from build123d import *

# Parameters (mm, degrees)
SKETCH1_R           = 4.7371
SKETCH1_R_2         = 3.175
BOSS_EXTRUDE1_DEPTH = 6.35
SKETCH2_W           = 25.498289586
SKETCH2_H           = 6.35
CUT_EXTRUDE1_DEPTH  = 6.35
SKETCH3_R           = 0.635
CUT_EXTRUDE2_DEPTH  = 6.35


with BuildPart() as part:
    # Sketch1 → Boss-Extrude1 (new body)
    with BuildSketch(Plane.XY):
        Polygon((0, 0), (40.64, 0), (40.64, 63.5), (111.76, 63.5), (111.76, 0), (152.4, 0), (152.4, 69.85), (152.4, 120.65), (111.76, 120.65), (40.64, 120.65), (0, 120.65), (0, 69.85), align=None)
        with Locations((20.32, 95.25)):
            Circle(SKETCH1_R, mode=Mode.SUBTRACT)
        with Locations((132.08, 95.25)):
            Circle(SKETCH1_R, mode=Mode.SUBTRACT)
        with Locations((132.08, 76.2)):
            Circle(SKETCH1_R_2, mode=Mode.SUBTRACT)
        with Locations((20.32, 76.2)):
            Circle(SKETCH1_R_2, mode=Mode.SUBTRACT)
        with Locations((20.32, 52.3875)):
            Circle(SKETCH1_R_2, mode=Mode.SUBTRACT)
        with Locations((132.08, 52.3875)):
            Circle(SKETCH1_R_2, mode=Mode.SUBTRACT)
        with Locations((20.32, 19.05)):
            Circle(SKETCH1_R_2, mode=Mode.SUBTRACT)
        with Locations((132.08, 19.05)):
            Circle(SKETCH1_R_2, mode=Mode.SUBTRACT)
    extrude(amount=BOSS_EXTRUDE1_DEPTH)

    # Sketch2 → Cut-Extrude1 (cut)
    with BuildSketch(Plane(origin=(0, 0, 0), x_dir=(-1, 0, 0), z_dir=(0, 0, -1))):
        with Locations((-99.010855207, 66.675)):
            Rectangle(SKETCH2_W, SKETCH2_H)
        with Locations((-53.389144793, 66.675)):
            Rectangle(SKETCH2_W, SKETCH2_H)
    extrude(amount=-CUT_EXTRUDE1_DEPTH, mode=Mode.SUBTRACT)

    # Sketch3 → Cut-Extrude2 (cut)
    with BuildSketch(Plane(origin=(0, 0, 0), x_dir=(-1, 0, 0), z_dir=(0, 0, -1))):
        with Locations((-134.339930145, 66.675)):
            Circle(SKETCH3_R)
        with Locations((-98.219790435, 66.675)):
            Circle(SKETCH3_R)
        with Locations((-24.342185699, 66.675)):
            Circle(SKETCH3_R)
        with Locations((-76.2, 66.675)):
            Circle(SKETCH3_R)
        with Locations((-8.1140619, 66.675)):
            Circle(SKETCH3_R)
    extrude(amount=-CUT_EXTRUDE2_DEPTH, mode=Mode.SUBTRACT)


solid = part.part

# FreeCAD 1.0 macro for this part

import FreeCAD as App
import Part
import Sketcher
Q = App.Units.Quantity


def add_polygon(sketch, points):
    """Adds a closed chain of lines whose ends are joined by coincident constraints."""
    first, n = sketch.GeometryCount, len(points)
    for a, b in zip(points, points[1:] + points[:1]):
        sketch.addGeometry(Part.LineSegment(App.Vector(*a, 0), App.Vector(*b, 0)), False)
    for i in range(n):
        sketch.addConstraint(Sketcher.Constraint("Coincident", first + i, 2, first + (i + 1) % n, 1))

doc = App.newDocument("Part")
body = doc.addObject("PartDesign::Body", "Body")

# Sketch on XY plane
sketch1 = body.newObject("Sketcher::SketchObject", "Sketch")
sketch1.AttachmentSupport = (doc.getObject("XY_Plane"), [""])
sketch1.MapMode = "FlatFace"
add_polygon(sketch1, [(0, 0), (40.6, 0), (40.6, 63.5), (111.8, 63.5), (111.8, 0), (152.4, 0), (152.4, 120.7), (0, 120.7)])  # lines 0-7
sketch1.addGeometry(Part.Circle(App.Vector(20.3, 19.1, 0), App.Vector(0, 0, 1), 3.2), False)  # 8
sketch1.addGeometry(Part.Circle(App.Vector(20.3, 52.4, 0), App.Vector(0, 0, 1), 3.2), False)  # 9
sketch1.addGeometry(Part.Circle(App.Vector(132.1, 19.1, 0), App.Vector(0, 0, 1), 3.2), False)  # 10
sketch1.addGeometry(Part.Circle(App.Vector(132.1, 52.4, 0), App.Vector(0, 0, 1), 3.2), False)  # 11
sketch1.addGeometry(Part.Circle(App.Vector(20.3, 76.2, 0), App.Vector(0, 0, 1), 3.2), False)  # 12
sketch1.addGeometry(Part.Circle(App.Vector(20.3, 95.2, 0), App.Vector(0, 0, 1), 4.7), False)  # 13
sketch1.addGeometry(Part.Circle(App.Vector(132.1, 76.2, 0), App.Vector(0, 0, 1), 3.2), False)  # 14
sketch1.addGeometry(Part.Circle(App.Vector(132.1, 95.2, 0), App.Vector(0, 0, 1), 4.7), False)  # 15
sketch1.addConstraint(Sketcher.Constraint("Horizontal", 0))
sketch1.addConstraint(Sketcher.Constraint("Vertical", 1))
sketch1.addConstraint(Sketcher.Constraint("Horizontal", 2))
sketch1.addConstraint(Sketcher.Constraint("Vertical", 3))
sketch1.addConstraint(Sketcher.Constraint("Horizontal", 4))
sketch1.addConstraint(Sketcher.Constraint("Vertical", 5))
sketch1.addConstraint(Sketcher.Constraint("Horizontal", 6))
sketch1.addConstraint(Sketcher.Constraint("Vertical", 7))
sketch1.addConstraint(Sketcher.Constraint("Coincident", 7, 2, -1, 1))
sketch1.addConstraint(Sketcher.Constraint("Equal", 8, 9))
sketch1.addConstraint(Sketcher.Constraint("Equal", 9, 10))
sketch1.addConstraint(Sketcher.Constraint("Equal", 10, 11))
sketch1.addConstraint(Sketcher.Constraint("Equal", 11, 12))
sketch1.addConstraint(Sketcher.Constraint("Equal", 12, 14))
sketch1.addConstraint(Sketcher.Constraint("Equal", 13, 15))
sketch1.addConstraint(Sketcher.Constraint("PointOnObject", 3, 2, -1))
sketch1.addConstraint(Sketcher.Constraint("Horizontal", 8, 3, 10, 3))
sketch1.addConstraint(Sketcher.Constraint("Horizontal", 9, 3, 11, 3))
sketch1.addConstraint(Sketcher.Constraint("Horizontal", 12, 3, 14, 3))
sketch1.addConstraint(Sketcher.Constraint("Horizontal", 13, 3, 15, 3))
sketch1.addConstraint(Sketcher.Constraint("Vertical", 8, 3, 9, 3))
sketch1.addConstraint(Sketcher.Constraint("Vertical", 10, 3, 11, 3))
sketch1.addConstraint(Sketcher.Constraint("Vertical", 9, 3, 12, 3))
sketch1.addConstraint(Sketcher.Constraint("Vertical", 12, 3, 13, 3))
sketch1.addConstraint(Sketcher.Constraint("Vertical", 11, 3, 14, 3))
sketch1.addConstraint(Sketcher.Constraint("Vertical", 14, 3, 15, 3))
sketch1.addConstraint(Sketcher.Constraint("Equal", 0, 4))
sketch1.addConstraint(Sketcher.Constraint("Diameter", 8, Q("0.25 in")))
sketch1.addConstraint(Sketcher.Constraint("DistanceX", 6, 2, 6, 1, Q("6 in")))
sketch1.addConstraint(Sketcher.Constraint("Diameter", 13, Q("0.373 in")))
sketch1.addConstraint(Sketcher.Constraint("DistanceX", 0, 1, 0, 2, Q("1.6 in")))
sketch1.addConstraint(Sketcher.Constraint("DistanceY", 1, 1, 1, 2, Q("2.5 in")))
sketch1.addConstraint(Sketcher.Constraint("DistanceY", -1, 1, 12, 3, Q("3 in")))
sketch1.addConstraint(Sketcher.Constraint("DistanceY", 8, 3, 13, 3, Q("3 in")))
sketch1.addConstraint(Sketcher.Constraint("DistanceY", 15, 3, 5, 2, Q("1 in")))
sketch1.addConstraint(Sketcher.Constraint("DistanceY", 5, 1, 5, 2, Q("4.75 in")))
sketch1.addConstraint(Sketcher.Constraint("DistanceX", -1, 1, 8, 3, Q("0.8 in")))
sketch1.addConstraint(Sketcher.Constraint("DistanceX", -1, 1, 10, 3, Q("5.2 in")))
sketch1.addConstraint(Sketcher.Constraint("DistanceY", -1, 1, 9, 3, Q("2.0625 in")))
pad1 = body.newObject("PartDesign::Pad", "Pad")
pad1.Profile = sketch1
pad1.Length = Q("0.25 in")

# Sketch on XY plane
sketch2 = body.newObject("Sketcher::SketchObject", "Sketch001")
sketch2.AttachmentSupport = (doc.getObject("XY_Plane"), [""])
sketch2.MapMode = "FlatFace"
add_polygon(sketch2, [(112, 70), (112, 64), (86, 64), (86, 70)])  # lines 0-3
add_polygon(sketch2, [(66, 70), (66, 64), (41, 64), (41, 70)])  # lines 4-7
sketch2.addConstraint(Sketcher.Constraint("Vertical", 0))
sketch2.addConstraint(Sketcher.Constraint("Horizontal", 1))
sketch2.addConstraint(Sketcher.Constraint("Vertical", 2))
sketch2.addConstraint(Sketcher.Constraint("Horizontal", 3))
sketch2.addConstraint(Sketcher.Constraint("Vertical", 4))
sketch2.addConstraint(Sketcher.Constraint("Horizontal", 5))
sketch2.addConstraint(Sketcher.Constraint("Vertical", 6))
sketch2.addConstraint(Sketcher.Constraint("Horizontal", 7))
sketch2.addConstraint(Sketcher.Constraint("Horizontal", 1, 2, 4, 2))
sketch2.addConstraint(Sketcher.Constraint("Horizontal", 3, 2, 6, 2))
sketch2.addConstraint(Sketcher.Constraint("Equal", 3, 5))
sketch2.addConstraint(Sketcher.Constraint("DistanceY", 0, 2, 0, 1, Q("0.25 in")))
sketch2.addConstraint(Sketcher.Constraint("DistanceX", -1, 1, 0, 2, Q("4.4 in")))
sketch2.addConstraint(Sketcher.Constraint("DistanceY", -1, 1, 0, 2, Q("2.5 in")))
sketch2.addConstraint(Sketcher.Constraint("DistanceX", -1, 1, 5, 2, Q("1.6 in")))
sketch2.addConstraint(Sketcher.Constraint("DistanceX", 1, 2, 1, 1, 25.49829))
pocket1 = body.newObject("PartDesign::Pocket", "Pocket")
pocket1.Profile = sketch2
pocket1.Length = Q("0.25 in")
pocket1.Reversed = True

# Sketch on XY plane
sketch3 = body.newObject("Sketcher::SketchObject", "Sketch002")
sketch3.AttachmentSupport = (doc.getObject("XY_Plane"), [""])
sketch3.MapMode = "FlatFace"
sketch3.addGeometry(Part.Circle(App.Vector(134.3, 66.7, 0), App.Vector(0, 0, 1), 0.6), False)
sketch3.addGeometry(Part.Circle(App.Vector(98.2, 66.7, 0), App.Vector(0, 0, 1), 0.6), False)
sketch3.addGeometry(Part.Circle(App.Vector(24.3, 66.7, 0), App.Vector(0, 0, 1), 0.6), False)
sketch3.addGeometry(Part.Circle(App.Vector(76.2, 66.7, 0), App.Vector(0, 0, 1), 0.6), False)
sketch3.addGeometry(Part.Circle(App.Vector(8.1, 66.7, 0), App.Vector(0, 0, 1), 0.6), False)
sketch3.addConstraint(Sketcher.Constraint("Equal", 0, 1))
sketch3.addConstraint(Sketcher.Constraint("Equal", 1, 2))
sketch3.addConstraint(Sketcher.Constraint("Equal", 2, 3))
sketch3.addConstraint(Sketcher.Constraint("Equal", 3, 4))
sketch3.addConstraint(Sketcher.Constraint("Horizontal", 0, 3, 1, 3))
sketch3.addConstraint(Sketcher.Constraint("Horizontal", 1, 3, 2, 3))
sketch3.addConstraint(Sketcher.Constraint("Horizontal", 2, 3, 3, 3))
sketch3.addConstraint(Sketcher.Constraint("Horizontal", 3, 3, 4, 3))
sketch3.addConstraint(Sketcher.Constraint("Diameter", 0, Q("0.05 in")))
sketch3.addConstraint(Sketcher.Constraint("DistanceX", -1, 1, 3, 3, Q("3 in")))
sketch3.addConstraint(Sketcher.Constraint("DistanceY", -1, 1, 0, 3, Q("2.625 in")))
sketch3.addConstraint(Sketcher.Constraint("DistanceX", -1, 1, 0, 3, 134.33993))
sketch3.addConstraint(Sketcher.Constraint("DistanceX", -1, 1, 1, 3, 98.21979))
sketch3.addConstraint(Sketcher.Constraint("DistanceX", -1, 1, 4, 3, 8.114062))
sketch3.addConstraint(Sketcher.Constraint("DistanceX", -1, 1, 2, 3, 24.342186))
pocket2 = body.newObject("PartDesign::Pocket", "Pocket001")
pocket2.Profile = sketch3
pocket2.Length = Q("0.25 in")
pocket2.Reversed = True

doc.recompute()
